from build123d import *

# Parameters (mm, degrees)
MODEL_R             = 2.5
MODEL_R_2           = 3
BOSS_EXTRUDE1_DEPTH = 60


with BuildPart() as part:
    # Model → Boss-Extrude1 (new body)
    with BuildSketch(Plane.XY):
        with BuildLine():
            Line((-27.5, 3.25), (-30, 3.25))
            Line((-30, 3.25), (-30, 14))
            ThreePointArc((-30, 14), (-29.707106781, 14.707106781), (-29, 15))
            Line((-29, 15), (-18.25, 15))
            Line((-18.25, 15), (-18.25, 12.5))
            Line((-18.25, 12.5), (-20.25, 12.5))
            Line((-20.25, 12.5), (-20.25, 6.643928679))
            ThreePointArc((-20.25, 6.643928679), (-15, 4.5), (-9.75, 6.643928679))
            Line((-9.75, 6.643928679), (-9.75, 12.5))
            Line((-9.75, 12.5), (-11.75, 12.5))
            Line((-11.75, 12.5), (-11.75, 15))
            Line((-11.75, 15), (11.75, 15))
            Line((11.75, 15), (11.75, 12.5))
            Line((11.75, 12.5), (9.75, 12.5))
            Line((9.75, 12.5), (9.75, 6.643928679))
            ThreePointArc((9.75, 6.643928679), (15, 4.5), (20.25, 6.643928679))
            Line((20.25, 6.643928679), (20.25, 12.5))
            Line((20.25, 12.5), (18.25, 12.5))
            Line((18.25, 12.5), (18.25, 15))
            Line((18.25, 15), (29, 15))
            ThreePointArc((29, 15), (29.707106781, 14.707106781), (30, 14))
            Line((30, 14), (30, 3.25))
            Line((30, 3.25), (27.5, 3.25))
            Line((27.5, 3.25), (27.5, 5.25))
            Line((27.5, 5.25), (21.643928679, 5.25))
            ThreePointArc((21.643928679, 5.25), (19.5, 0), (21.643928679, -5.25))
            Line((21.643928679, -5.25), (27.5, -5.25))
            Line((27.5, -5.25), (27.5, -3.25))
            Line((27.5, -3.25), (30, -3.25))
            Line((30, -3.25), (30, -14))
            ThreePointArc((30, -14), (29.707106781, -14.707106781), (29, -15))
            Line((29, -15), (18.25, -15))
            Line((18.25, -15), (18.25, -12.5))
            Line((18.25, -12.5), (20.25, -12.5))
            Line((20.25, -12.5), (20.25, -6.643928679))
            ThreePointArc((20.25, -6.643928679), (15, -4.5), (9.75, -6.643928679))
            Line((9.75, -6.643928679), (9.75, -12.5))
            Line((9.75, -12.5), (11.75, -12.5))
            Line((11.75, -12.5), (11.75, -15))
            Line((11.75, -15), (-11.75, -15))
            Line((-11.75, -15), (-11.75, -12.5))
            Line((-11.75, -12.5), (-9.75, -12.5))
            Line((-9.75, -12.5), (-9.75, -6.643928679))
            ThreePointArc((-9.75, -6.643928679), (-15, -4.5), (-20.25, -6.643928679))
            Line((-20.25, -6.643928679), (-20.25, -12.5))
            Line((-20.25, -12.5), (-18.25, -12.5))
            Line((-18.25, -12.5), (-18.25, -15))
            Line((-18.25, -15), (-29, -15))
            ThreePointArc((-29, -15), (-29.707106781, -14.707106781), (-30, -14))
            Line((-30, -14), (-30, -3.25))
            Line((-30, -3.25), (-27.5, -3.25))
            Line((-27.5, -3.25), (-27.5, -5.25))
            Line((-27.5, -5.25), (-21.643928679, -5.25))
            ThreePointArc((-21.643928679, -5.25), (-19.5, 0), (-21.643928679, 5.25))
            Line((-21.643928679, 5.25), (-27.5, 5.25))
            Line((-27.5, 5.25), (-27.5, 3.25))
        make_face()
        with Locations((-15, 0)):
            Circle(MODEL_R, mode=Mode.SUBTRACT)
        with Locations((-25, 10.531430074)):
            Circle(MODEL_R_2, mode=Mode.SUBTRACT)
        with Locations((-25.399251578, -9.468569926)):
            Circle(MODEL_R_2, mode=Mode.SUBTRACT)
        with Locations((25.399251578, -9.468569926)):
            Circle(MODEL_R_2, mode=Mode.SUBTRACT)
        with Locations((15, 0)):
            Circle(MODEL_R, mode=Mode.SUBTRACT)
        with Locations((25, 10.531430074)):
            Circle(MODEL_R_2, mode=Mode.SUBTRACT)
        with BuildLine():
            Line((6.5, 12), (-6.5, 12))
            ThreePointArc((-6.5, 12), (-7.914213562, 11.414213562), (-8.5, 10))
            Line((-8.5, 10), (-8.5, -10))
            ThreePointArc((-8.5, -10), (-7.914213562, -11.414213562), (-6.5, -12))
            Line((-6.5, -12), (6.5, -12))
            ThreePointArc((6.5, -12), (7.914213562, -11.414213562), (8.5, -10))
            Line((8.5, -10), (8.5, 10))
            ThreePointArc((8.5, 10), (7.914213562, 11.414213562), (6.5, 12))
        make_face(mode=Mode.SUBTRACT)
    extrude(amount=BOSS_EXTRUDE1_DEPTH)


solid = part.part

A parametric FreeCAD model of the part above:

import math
import FreeCAD as App
import Part
import Sketcher
from FreeCAD import Vector

doc = App.newDocument("Part")
params = doc.addObject("Spreadsheet::Sheet", "Params")
for row, (alias, value) in enumerate([
    ("sketch1_diameter", "6 mm"),
    ("sketch1_diameter2", "5 mm"),
    ("sketch1_radius", "1 mm"),
    ("sketch1_radius2", "2 mm"),
    ("sketch1_radius3", "7.5 mm"),
    ("pad1_length", "60 mm"),
], start=1):
    params.set(f"A{row}", alias)
    params.set(f"B{row}", "=" + value)
    params.setAlias(f"B{row}", alias)

body = doc.addObject("PartDesign::Body", "Body")

sketch1 = doc.addObject("Sketcher::SketchObject", "Sketch")
body.addObject(sketch1)
sketch1.AttachmentSupport = (doc.XY_Plane, [""])
sketch1.MapMode = "FlatFace"
sketch1.addGeometry([
    Part.LineSegment(Vector(-30, 3.2, 0), Vector(-27.5, 3.2, 0)),
    Part.LineSegment(Vector(-27.5, 3.2, 0), Vector(-27.5, 5.2, 0)),
    Part.LineSegment(Vector(-27.5, 5.2, 0), Vector(-21.6, 5.2, 0)),
    Part.ArcOfCircle(Part.Circle(Vector(-27, 0, 0), Vector(0, 0, 1), 7.5), math.radians(-44), math.radians(44)),
    Part.LineSegment(Vector(-21.6, -5.2, 0), Vector(-27.5, -5.2, 0)),
    Part.LineSegment(Vector(-27.5, -5.2, 0), Vector(-27.5, -3.2, 0)),
    Part.LineSegment(Vector(-27.5, -3.2, 0), Vector(-30, -3.2, 0)),
    Part.LineSegment(Vector(-30, -3.2, 0), Vector(-30, -14, 0)),
    Part.ArcOfCircle(Part.Circle(Vector(-29, -14, 0), Vector(0, 0, 1), 1), math.radians(-180), math.radians(-90)),
    Part.LineSegment(Vector(-29, -15, 0), Vector(-18.2, -15, 0)),
    Part.LineSegment(Vector(-18.2, -15, 0), Vector(-18.2, -12.5, 0)),
    Part.LineSegment(Vector(-18.2, -12.5, 0), Vector(-20.2, -12.5, 0)),
    Part.LineSegment(Vector(-20.2, -12.5, 0), Vector(-20.2, -6.6, 0)),
    Part.ArcOfCircle(Part.Circle(Vector(-15, -12, 0), Vector(0, 0, 1), 7.5), math.radians(46), math.radians(134)),
    Part.LineSegment(Vector(-9.8, -6.6, 0), Vector(-9.8, -12.5, 0)),
    Part.LineSegment(Vector(-9.8, -12.5, 0), Vector(-11.8, -12.5, 0)),
    Part.LineSegment(Vector(-11.8, -12.5, 0), Vector(-11.8, -15, 0)),
    Part.LineSegment(Vector(-11.8, -15, 0), Vector(11.8, -15, 0)),
    Part.LineSegment(Vector(11.8, -15, 0), Vector(11.8, -12.5, 0)),
    Part.LineSegment(Vector(11.8, -12.5, 0), Vector(9.8, -12.5, 0)),
    Part.LineSegment(Vector(9.8, -12.5, 0), Vector(9.8, -6.6, 0)),
    Part.ArcOfCircle(Part.Circle(Vector(15, -12, 0), Vector(0, 0, 1), 7.5), math.radians(46), math.radians(134)),
    Part.LineSegment(Vector(20.2, -6.6, 0), Vector(20.2, -12.5, 0)),
    Part.LineSegment(Vector(20.2, -12.5, 0), Vector(18.2, -12.5, 0)),
    Part.LineSegment(Vector(18.2, -12.5, 0), Vector(18.2, -15, 0)),
    Part.LineSegment(Vector(18.2, -15, 0), Vector(29, -15, 0)),
    Part.ArcOfCircle(Part.Circle(Vector(29, -14, 0), Vector(0, 0, 1), 1), math.radians(-90), math.radians(0)),
    Part.LineSegment(Vector(30, -14, 0), Vector(30, -3.2, 0)),
    Part.LineSegment(Vector(30, -3.2, 0), Vector(27.5, -3.2, 0)),
    Part.LineSegment(Vector(27.5, -3.2, 0), Vector(27.5, -5.2, 0)),
    Part.LineSegment(Vector(27.5, -5.2, 0), Vector(21.6, -5.2, 0)),
    Part.ArcOfCircle(Part.Circle(Vector(27, 0, 0), Vector(0, 0, 1), 7.5), math.radians(136), math.radians(224)),
    Part.LineSegment(Vector(21.6, 5.2, 0), Vector(27.5, 5.2, 0)),
    Part.LineSegment(Vector(27.5, 5.2, 0), Vector(27.5, 3.2, 0)),
    Part.LineSegment(Vector(27.5, 3.2, 0), Vector(30, 3.2, 0)),
    Part.LineSegment(Vector(30, 3.2, 0), Vector(30, 14, 0)),
    Part.ArcOfCircle(Part.Circle(Vector(29, 14, 0), Vector(0, 0, 1), 1), math.radians(0), math.radians(90)),
    Part.LineSegment(Vector(29, 15, 0), Vector(18.2, 15, 0)),
    Part.LineSegment(Vector(18.2, 15, 0), Vector(18.2, 12.5, 0)),
    Part.LineSegment(Vector(18.2, 12.5, 0), Vector(20.2, 12.5, 0)),
    Part.LineSegment(Vector(20.2, 12.5, 0), Vector(20.2, 6.6, 0)),
    Part.ArcOfCircle(Part.Circle(Vector(15, 12, 0), Vector(0, 0, 1), 7.5), math.radians(-134), math.radians(-46)),
    Part.LineSegment(Vector(9.8, 6.6, 0), Vector(9.8, 12.5, 0)),
    Part.LineSegment(Vector(9.8, 12.5, 0), Vector(11.8, 12.5, 0)),
    Part.LineSegment(Vector(11.8, 12.5, 0), Vector(11.8, 15, 0)),
    Part.LineSegment(Vector(11.8, 15, 0), Vector(-11.8, 15, 0)),
    Part.LineSegment(Vector(-11.8, 15, 0), Vector(-11.8, 12.5, 0)),
    Part.LineSegment(Vector(-11.8, 12.5, 0), Vector(-9.8, 12.5, 0)),
    Part.LineSegment(Vector(-9.8, 12.5, 0), Vector(-9.8, 6.6, 0)),
    Part.ArcOfCircle(Part.Circle(Vector(-15, 12, 0), Vector(0, 0, 1), 7.5), math.radians(-134), math.radians(-46)),
    Part.LineSegment(Vector(-20.2, 6.6, 0), Vector(-20.2, 12.5, 0)),
    Part.LineSegment(Vector(-20.2, 12.5, 0), Vector(-18.2, 12.5, 0)),
    Part.LineSegment(Vector(-18.2, 12.5, 0), Vector(-18.2, 15, 0)),
    Part.LineSegment(Vector(-18.2, 15, 0), Vector(-29, 15, 0)),
    Part.ArcOfCircle(Part.Circle(Vector(-29, 14, 0), Vector(0, 0, 1), 1), math.radians(90), math.radians(180)),
    Part.LineSegment(Vector(-30, 14, 0), Vector(-30, 3.2, 0)),
    Part.Circle(Vector(25.4, -9.5, 0), Vector(0, 0, 1), 3),
    Part.Circle(Vector(15, 0, 0), Vector(0, 0, 1), 2.5),
    Part.Circle(Vector(-25.4, -9.5, 0), Vector(0, 0, 1), 3),
    Part.ArcOfCircle(Part.Circle(Vector(6.5, 10, 0), Vector(0, 0, 1), 2), math.radians(0), math.radians(90)),
    Part.LineSegment(Vector(8.5, 10, 0), Vector(8.5, -10, 0)),
    Part.ArcOfCircle(Part.Circle(Vector(6.5, -10, 0), Vector(0, 0, 1), 2), math.radians(-90), math.radians(0)),
    Part.LineSegment(Vector(6.5, -12, 0), Vector(-6.5, -12, 0)),
    Part.ArcOfCircle(Part.Circle(Vector(-6.5, -10, 0), Vector(0, 0, 1), 2), math.radians(-180), math.radians(-90)),
    Part.LineSegment(Vector(-8.5, -10, 0), Vector(-8.5, 10, 0)),
    Part.ArcOfCircle(Part.Circle(Vector(-6.5, 10, 0), Vector(0, 0, 1), 2), math.radians(90), math.radians(180)),
    Part.LineSegment(Vector(-6.5, 12, 0), Vector(6.5, 12, 0)),
    Part.Circle(Vector(-15, 0, 0), Vector(0, 0, 1), 2.5),
    Part.Circle(Vector(25, 10.5, 0), Vector(0, 0, 1), 3),
    Part.Circle(Vector(-25, 10.5, 0), Vector(0, 0, 1), 3),
], False)
sketch1.addConstraint([
    Sketcher.Constraint("Coincident", 0, 2, 1, 1),
    Sketcher.Constraint("Coincident", 1, 2, 2, 1),
    Sketcher.Constraint("Coincident", 2, 2, 3, 2),
    Sketcher.Constraint("Coincident", 3, 1, 4, 1),
    Sketcher.Constraint("Coincident", 4, 2, 5, 1),
    Sketcher.Constraint("Coincident", 5, 2, 6, 1),
    Sketcher.Constraint("Coincident", 6, 2, 7, 1),
    Sketcher.Constraint("Tangent", 7, 2, 8, 1),
    Sketcher.Constraint("Tangent", 8, 2, 9, 1),
    Sketcher.Constraint("Coincident", 9, 2, 10, 1),
    Sketcher.Constraint("Coincident", 10, 2, 11, 1),
    Sketcher.Constraint("Coincident", 11, 2, 12, 1),
    Sketcher.Constraint("Coincident", 12, 2, 13, 2),
    Sketcher.Constraint("Coincident", 13, 1, 14, 1),
    Sketcher.Constraint("Coincident", 14, 2, 15, 1),
    Sketcher.Constraint("Coincident", 15, 2, 16, 1),
    Sketcher.Constraint("Coincident", 16, 2, 17, 1),
    Sketcher.Constraint("Coincident", 17, 2, 18, 1),
    Sketcher.Constraint("Coincident", 18, 2, 19, 1),
    Sketcher.Constraint("Coincident", 19, 2, 20, 1),
    Sketcher.Constraint("Coincident", 20, 2, 21, 2),
    Sketcher.Constraint("Coincident", 21, 1, 22, 1),
    Sketcher.Constraint("Coincident", 22, 2, 23, 1),
    Sketcher.Constraint("Coincident", 23, 2, 24, 1),
    Sketcher.Constraint("Coincident", 24, 2, 25, 1),
    Sketcher.Constraint("Tangent", 25, 2, 26, 1),
    Sketcher.Constraint("Tangent", 26, 2, 27, 1),
    Sketcher.Constraint("Coincident", 27, 2, 28, 1),
    Sketcher.Constraint("Coincident", 28, 2, 29, 1),
    Sketcher.Constraint("Coincident", 29, 2, 30, 1),
    Sketcher.Constraint("Coincident", 30, 2, 31, 2),
    Sketcher.Constraint("Coincident", 31, 1, 32, 1),
    Sketcher.Constraint("Coincident", 32, 2, 33, 1),
    Sketcher.Constraint("Coincident", 33, 2, 34, 1),
    Sketcher.Constraint("Coincident", 34, 2, 35, 1),
    Sketcher.Constraint("Tangent", 35, 2, 36, 1),
    Sketcher.Constraint("Tangent", 36, 2, 37, 1),
    Sketcher.Constraint("Coincident", 37, 2, 38, 1),
    Sketcher.Constraint("Coincident", 38, 2, 39, 1),
    Sketcher.Constraint("Coincident", 39, 2, 40, 1),
    Sketcher.Constraint("Coincident", 40, 2, 41, 2),
    Sketcher.Constraint("Coincident", 41, 1, 42, 1),
    Sketcher.Constraint("Coincident", 42, 2, 43, 1),
    Sketcher.Constraint("Coincident", 43, 2, 44, 1),
    Sketcher.Constraint("Coincident", 44, 2, 45, 1),
    Sketcher.Constraint("Coincident", 45, 2, 46, 1),
    Sketcher.Constraint("Coincident", 46, 2, 47, 1),
    Sketcher.Constraint("Coincident", 47, 2, 48, 1),
    Sketcher.Constraint("Coincident", 48, 2, 49, 2),
    Sketcher.Constraint("Coincident", 49, 1, 50, 1),
    Sketcher.Constraint("Coincident", 50, 2, 51, 1),
    Sketcher.Constraint("Coincident", 51, 2, 52, 1),
    Sketcher.Constraint("Coincident", 52, 2, 53, 1),
    Sketcher.Constraint("Tangent", 53, 2, 54, 1),
    Sketcher.Constraint("Tangent", 54, 2, 55, 1),
    Sketcher.Constraint("Coincident", 55, 2, 0, 1),
    Sketcher.Constraint("Tangent", 59, 1, 60, 1),
    Sketcher.Constraint("Tangent", 60, 2, 61, 2),
    Sketcher.Constraint("Tangent", 61, 1, 62, 1),
    Sketcher.Constraint("Tangent", 62, 2, 63, 2),
    Sketcher.Constraint("Tangent", 63, 1, 64, 1),
    Sketcher.Constraint("Tangent", 64, 2, 65, 2),
    Sketcher.Constraint("Tangent", 65, 1, 66, 1),
    Sketcher.Constraint("Tangent", 66, 2, 59, 2),
    Sketcher.Constraint("Horizontal", 0),
    Sketcher.Constraint("Vertical", 1),
    Sketcher.Constraint("Horizontal", 2),
    Sketcher.Constraint("Horizontal", 4),
    Sketcher.Constraint("Vertical", 5),
    Sketcher.Constraint("Horizontal", 6),
    Sketcher.Constraint("Vertical", 7),
    Sketcher.Constraint("Horizontal", 9),
    Sketcher.Constraint("Vertical", 10),
    Sketcher.Constraint("Horizontal", 11),
    Sketcher.Constraint("Vertical", 12),
    Sketcher.Constraint("Vertical", 14),
    Sketcher.Constraint("Horizontal", 15),
    Sketcher.Constraint("Vertical", 16),
    Sketcher.Constraint("Horizontal", 17),
    Sketcher.Constraint("Vertical", 18),
    Sketcher.Constraint("Horizontal", 19),
    Sketcher.Constraint("Vertical", 20),
    Sketcher.Constraint("Vertical", 22),
    Sketcher.Constraint("Horizontal", 23),
    Sketcher.Constraint("Vertical", 24),
    Sketcher.Constraint("Horizontal", 25),
    Sketcher.Constraint("Vertical", 27),
    Sketcher.Constraint("Horizontal", 28),
    Sketcher.Constraint("Vertical", 29),
    Sketcher.Constraint("Horizontal", 30),
    Sketcher.Constraint("Horizontal", 32),
    Sketcher.Constraint("Vertical", 33),
    Sketcher.Constraint("Horizontal", 34),
    Sketcher.Constraint("Vertical", 35),
    Sketcher.Constraint("Horizontal", 37),
    Sketcher.Constraint("Vertical", 38),
    Sketcher.Constraint("Horizontal", 39),
    Sketcher.Constraint("Vertical", 40),
    Sketcher.Constraint("Vertical", 42),
    Sketcher.Constraint("Horizontal", 43),
    Sketcher.Constraint("Vertical", 44),
    Sketcher.Constraint("Horizontal", 45),
    Sketcher.Constraint("Vertical", 46),
    Sketcher.Constraint("Horizontal", 47),
    Sketcher.Constraint("Vertical", 48),
    Sketcher.Constraint("Vertical", 50),
    Sketcher.Constraint("Horizontal", 51),
    Sketcher.Constraint("Vertical", 52),
    Sketcher.Constraint("Horizontal", 53),
    Sketcher.Constraint("Vertical", 55),
    Sketcher.Constraint("Vertical", 60),
    Sketcher.Constraint("Horizontal", 62),
    Sketcher.Constraint("Vertical", 64),
    Sketcher.Constraint("Horizontal", 66),
    Sketcher.Constraint("Equal", 3, 13),
    Sketcher.Constraint("Equal", 13, 21),
    Sketcher.Constraint("Equal", 8, 26),
    Sketcher.Constraint("Equal", 21, 31),
    Sketcher.Constraint("Equal", 26, 36),
    Sketcher.Constraint("Equal", 31, 41),
    Sketcher.Constraint("Equal", 41, 49),
    Sketcher.Constraint("Equal", 36, 54),
    Sketcher.Constraint("Equal", 56, 58),
    Sketcher.Constraint("Equal", 59, 61),
    Sketcher.Constraint("Equal", 61, 63),
    Sketcher.Constraint("Equal", 63, 65),
    Sketcher.Constraint("Equal", 57, 67),
    Sketcher.Constraint("Equal", 58, 68),
    Sketcher.Constraint("Equal", 68, 69),
    Sketcher.Constraint("Symmetric", 3, 3, 31, 3, -1, 1),
    Sketcher.Constraint("Symmetric", 8, 3, 36, 3, -1, 1),
    Sketcher.Constraint("Symmetric", 13, 3, 41, 3, -1, 1),
    Sketcher.Constraint("Symmetric", 21, 3, 49, 3, -1, 1),
    Sketcher.Constraint("Symmetric", 26, 3, 54, 3, -1, 1),
    Sketcher.Constraint("Symmetric", 59, 3, 63, 3, -1, 1),
    Sketcher.Constraint("Symmetric", 57, 3, 67, 3, -1, 1),
    Sketcher.Constraint("Symmetric", 0, 2, 28, 2, -1, 1),
    Sketcher.Constraint("Symmetric", 4, 2, 32, 2, -1, 1),
    Sketcher.Constraint("Symmetric", 10, 2, 38, 2, -1, 1),
    Sketcher.Constraint("Symmetric", 14, 2, 42, 2, -1, 1),
    Sketcher.Constraint("Symmetric", 16, 2, 44, 2, -1, 1),
    Sketcher.Constraint("Symmetric", 18, 2, 46, 2, -1, 1),
    Sketcher.Constraint("Symmetric", 22, 2, 50, 2, -1, 1),
    Sketcher.Constraint("Symmetric", 13, 3, 21, 3, -2),
    Sketcher.Constraint("Symmetric", 8, 3, 26, 3, -2),
    Sketcher.Constraint("Symmetric", 56, 3, 58, 3, -2),
    Sketcher.Constraint("Symmetric", 68, 3, 69, 3, -2),
    Sketcher.Constraint("Symmetric", 15, 2, 18, 2, -2),
    Sketcher.Constraint("Symmetric", 11, 2, 22, 2, -2),
    Sketcher.Constraint("Symmetric", 5, 2, 28, 2, -2),
    Sketcher.Constraint("Symmetric", 3, 1, 30, 2, -2),
    Sketcher.Constraint("PointOnObject", 57, 3, -1),
    Sketcher.Constraint("Horizontal", 12, 2, 13, 1),
    Sketcher.Constraint("Horizontal", 11, 2, 14, 2),
    Sketcher.Constraint("Horizontal", 9, 2, 16, 2),
    Sketcher.Constraint("Horizontal", 13, 1, 20, 2),
    Sketcher.Constraint("Horizontal", 2, 2, 31, 1),
    Sketcher.Constraint("Horizontal", 0, 2, 33, 2),
    Sketcher.Constraint("Horizontal", 40, 2, 41, 1),
    Sketcher.Constraint("Horizontal", 41, 1, 48, 2),
    Sketcher.Constraint("Horizontal", 21, 3, 61, 1),
    Sketcher.Constraint("Vertical", 41, 3, 57, 3),
    Sketcher.Constraint("Vertical", 24, 2, 37, 2),
    Sketcher.Constraint("Vertical", 10, 2, 51, 2),
    Sketcher.Constraint("Equal", 11, 15),
    Sketcher.Constraint("Equal", 51, 1),
    Sketcher.Constraint("Equal", 53, 7),
    Sketcher.Constraint("Equal", 34, 10),
    Sketcher.Constraint("Equal", 32, 12),
    Sketcher.Constraint("Diameter", 56, 6.0),
    Sketcher.Constraint("Diameter", 57, 5.0),
    Sketcher.Constraint("Radius", 8, 1.0),
    Sketcher.Constraint("Radius", 59, 2.0),
    Sketcher.Constraint("Radius", 3, 7.5),
    Sketcher.Constraint("DistanceX", 11, 2, 11, 1, 2.0),
    Sketcher.Constraint("DistanceX", 62, 2, 62, 1, 13.0),
    Sketcher.Constraint("DistanceY", 60, 2, 60, 1, 20.0),
    Sketcher.Constraint("DistanceX", 0, 1, 0, 2, 2.5),
    Sketcher.Constraint("DistanceX", 17, 1, 17, 2, 23.5),
    Sketcher.Constraint("DistanceX", 3, 3, -1, 1, 27.0),
    Sketcher.Constraint("DistanceX", 8, 3, -1, 1, 29.0),
    Sketcher.Constraint("DistanceY", 8, 3, -1, 1, 14.0),
    Sketcher.Constraint("DistanceX", -1, 1, 68, 3, 25.0),
    Sketcher.Constraint("DistanceX", -1, 1, 56, 3, 25.399252),
    Sketcher.Constraint("DistanceY", 56, 3, -1, 1, 9.46857),
    Sketcher.Constraint("DistanceY", -1, 1, 68, 3, 10.53143),
])
sketch1.setExpression("Constraints[169]", "Params.sketch1_diameter")
sketch1.setExpression("Constraints[170]", "Params.sketch1_diameter2")
sketch1.setExpression("Constraints[171]", "Params.sketch1_radius")
sketch1.setExpression("Constraints[172]", "Params.sketch1_radius2")
sketch1.setExpression("Constraints[173]", "Params.sketch1_radius3")
pad1 = doc.addObject("PartDesign::Pad", "Pad")
body.addObject(pad1)
pad1.Profile = sketch1
pad1.setExpression("Length", "Params.pad1_length")

doc.recompute()
